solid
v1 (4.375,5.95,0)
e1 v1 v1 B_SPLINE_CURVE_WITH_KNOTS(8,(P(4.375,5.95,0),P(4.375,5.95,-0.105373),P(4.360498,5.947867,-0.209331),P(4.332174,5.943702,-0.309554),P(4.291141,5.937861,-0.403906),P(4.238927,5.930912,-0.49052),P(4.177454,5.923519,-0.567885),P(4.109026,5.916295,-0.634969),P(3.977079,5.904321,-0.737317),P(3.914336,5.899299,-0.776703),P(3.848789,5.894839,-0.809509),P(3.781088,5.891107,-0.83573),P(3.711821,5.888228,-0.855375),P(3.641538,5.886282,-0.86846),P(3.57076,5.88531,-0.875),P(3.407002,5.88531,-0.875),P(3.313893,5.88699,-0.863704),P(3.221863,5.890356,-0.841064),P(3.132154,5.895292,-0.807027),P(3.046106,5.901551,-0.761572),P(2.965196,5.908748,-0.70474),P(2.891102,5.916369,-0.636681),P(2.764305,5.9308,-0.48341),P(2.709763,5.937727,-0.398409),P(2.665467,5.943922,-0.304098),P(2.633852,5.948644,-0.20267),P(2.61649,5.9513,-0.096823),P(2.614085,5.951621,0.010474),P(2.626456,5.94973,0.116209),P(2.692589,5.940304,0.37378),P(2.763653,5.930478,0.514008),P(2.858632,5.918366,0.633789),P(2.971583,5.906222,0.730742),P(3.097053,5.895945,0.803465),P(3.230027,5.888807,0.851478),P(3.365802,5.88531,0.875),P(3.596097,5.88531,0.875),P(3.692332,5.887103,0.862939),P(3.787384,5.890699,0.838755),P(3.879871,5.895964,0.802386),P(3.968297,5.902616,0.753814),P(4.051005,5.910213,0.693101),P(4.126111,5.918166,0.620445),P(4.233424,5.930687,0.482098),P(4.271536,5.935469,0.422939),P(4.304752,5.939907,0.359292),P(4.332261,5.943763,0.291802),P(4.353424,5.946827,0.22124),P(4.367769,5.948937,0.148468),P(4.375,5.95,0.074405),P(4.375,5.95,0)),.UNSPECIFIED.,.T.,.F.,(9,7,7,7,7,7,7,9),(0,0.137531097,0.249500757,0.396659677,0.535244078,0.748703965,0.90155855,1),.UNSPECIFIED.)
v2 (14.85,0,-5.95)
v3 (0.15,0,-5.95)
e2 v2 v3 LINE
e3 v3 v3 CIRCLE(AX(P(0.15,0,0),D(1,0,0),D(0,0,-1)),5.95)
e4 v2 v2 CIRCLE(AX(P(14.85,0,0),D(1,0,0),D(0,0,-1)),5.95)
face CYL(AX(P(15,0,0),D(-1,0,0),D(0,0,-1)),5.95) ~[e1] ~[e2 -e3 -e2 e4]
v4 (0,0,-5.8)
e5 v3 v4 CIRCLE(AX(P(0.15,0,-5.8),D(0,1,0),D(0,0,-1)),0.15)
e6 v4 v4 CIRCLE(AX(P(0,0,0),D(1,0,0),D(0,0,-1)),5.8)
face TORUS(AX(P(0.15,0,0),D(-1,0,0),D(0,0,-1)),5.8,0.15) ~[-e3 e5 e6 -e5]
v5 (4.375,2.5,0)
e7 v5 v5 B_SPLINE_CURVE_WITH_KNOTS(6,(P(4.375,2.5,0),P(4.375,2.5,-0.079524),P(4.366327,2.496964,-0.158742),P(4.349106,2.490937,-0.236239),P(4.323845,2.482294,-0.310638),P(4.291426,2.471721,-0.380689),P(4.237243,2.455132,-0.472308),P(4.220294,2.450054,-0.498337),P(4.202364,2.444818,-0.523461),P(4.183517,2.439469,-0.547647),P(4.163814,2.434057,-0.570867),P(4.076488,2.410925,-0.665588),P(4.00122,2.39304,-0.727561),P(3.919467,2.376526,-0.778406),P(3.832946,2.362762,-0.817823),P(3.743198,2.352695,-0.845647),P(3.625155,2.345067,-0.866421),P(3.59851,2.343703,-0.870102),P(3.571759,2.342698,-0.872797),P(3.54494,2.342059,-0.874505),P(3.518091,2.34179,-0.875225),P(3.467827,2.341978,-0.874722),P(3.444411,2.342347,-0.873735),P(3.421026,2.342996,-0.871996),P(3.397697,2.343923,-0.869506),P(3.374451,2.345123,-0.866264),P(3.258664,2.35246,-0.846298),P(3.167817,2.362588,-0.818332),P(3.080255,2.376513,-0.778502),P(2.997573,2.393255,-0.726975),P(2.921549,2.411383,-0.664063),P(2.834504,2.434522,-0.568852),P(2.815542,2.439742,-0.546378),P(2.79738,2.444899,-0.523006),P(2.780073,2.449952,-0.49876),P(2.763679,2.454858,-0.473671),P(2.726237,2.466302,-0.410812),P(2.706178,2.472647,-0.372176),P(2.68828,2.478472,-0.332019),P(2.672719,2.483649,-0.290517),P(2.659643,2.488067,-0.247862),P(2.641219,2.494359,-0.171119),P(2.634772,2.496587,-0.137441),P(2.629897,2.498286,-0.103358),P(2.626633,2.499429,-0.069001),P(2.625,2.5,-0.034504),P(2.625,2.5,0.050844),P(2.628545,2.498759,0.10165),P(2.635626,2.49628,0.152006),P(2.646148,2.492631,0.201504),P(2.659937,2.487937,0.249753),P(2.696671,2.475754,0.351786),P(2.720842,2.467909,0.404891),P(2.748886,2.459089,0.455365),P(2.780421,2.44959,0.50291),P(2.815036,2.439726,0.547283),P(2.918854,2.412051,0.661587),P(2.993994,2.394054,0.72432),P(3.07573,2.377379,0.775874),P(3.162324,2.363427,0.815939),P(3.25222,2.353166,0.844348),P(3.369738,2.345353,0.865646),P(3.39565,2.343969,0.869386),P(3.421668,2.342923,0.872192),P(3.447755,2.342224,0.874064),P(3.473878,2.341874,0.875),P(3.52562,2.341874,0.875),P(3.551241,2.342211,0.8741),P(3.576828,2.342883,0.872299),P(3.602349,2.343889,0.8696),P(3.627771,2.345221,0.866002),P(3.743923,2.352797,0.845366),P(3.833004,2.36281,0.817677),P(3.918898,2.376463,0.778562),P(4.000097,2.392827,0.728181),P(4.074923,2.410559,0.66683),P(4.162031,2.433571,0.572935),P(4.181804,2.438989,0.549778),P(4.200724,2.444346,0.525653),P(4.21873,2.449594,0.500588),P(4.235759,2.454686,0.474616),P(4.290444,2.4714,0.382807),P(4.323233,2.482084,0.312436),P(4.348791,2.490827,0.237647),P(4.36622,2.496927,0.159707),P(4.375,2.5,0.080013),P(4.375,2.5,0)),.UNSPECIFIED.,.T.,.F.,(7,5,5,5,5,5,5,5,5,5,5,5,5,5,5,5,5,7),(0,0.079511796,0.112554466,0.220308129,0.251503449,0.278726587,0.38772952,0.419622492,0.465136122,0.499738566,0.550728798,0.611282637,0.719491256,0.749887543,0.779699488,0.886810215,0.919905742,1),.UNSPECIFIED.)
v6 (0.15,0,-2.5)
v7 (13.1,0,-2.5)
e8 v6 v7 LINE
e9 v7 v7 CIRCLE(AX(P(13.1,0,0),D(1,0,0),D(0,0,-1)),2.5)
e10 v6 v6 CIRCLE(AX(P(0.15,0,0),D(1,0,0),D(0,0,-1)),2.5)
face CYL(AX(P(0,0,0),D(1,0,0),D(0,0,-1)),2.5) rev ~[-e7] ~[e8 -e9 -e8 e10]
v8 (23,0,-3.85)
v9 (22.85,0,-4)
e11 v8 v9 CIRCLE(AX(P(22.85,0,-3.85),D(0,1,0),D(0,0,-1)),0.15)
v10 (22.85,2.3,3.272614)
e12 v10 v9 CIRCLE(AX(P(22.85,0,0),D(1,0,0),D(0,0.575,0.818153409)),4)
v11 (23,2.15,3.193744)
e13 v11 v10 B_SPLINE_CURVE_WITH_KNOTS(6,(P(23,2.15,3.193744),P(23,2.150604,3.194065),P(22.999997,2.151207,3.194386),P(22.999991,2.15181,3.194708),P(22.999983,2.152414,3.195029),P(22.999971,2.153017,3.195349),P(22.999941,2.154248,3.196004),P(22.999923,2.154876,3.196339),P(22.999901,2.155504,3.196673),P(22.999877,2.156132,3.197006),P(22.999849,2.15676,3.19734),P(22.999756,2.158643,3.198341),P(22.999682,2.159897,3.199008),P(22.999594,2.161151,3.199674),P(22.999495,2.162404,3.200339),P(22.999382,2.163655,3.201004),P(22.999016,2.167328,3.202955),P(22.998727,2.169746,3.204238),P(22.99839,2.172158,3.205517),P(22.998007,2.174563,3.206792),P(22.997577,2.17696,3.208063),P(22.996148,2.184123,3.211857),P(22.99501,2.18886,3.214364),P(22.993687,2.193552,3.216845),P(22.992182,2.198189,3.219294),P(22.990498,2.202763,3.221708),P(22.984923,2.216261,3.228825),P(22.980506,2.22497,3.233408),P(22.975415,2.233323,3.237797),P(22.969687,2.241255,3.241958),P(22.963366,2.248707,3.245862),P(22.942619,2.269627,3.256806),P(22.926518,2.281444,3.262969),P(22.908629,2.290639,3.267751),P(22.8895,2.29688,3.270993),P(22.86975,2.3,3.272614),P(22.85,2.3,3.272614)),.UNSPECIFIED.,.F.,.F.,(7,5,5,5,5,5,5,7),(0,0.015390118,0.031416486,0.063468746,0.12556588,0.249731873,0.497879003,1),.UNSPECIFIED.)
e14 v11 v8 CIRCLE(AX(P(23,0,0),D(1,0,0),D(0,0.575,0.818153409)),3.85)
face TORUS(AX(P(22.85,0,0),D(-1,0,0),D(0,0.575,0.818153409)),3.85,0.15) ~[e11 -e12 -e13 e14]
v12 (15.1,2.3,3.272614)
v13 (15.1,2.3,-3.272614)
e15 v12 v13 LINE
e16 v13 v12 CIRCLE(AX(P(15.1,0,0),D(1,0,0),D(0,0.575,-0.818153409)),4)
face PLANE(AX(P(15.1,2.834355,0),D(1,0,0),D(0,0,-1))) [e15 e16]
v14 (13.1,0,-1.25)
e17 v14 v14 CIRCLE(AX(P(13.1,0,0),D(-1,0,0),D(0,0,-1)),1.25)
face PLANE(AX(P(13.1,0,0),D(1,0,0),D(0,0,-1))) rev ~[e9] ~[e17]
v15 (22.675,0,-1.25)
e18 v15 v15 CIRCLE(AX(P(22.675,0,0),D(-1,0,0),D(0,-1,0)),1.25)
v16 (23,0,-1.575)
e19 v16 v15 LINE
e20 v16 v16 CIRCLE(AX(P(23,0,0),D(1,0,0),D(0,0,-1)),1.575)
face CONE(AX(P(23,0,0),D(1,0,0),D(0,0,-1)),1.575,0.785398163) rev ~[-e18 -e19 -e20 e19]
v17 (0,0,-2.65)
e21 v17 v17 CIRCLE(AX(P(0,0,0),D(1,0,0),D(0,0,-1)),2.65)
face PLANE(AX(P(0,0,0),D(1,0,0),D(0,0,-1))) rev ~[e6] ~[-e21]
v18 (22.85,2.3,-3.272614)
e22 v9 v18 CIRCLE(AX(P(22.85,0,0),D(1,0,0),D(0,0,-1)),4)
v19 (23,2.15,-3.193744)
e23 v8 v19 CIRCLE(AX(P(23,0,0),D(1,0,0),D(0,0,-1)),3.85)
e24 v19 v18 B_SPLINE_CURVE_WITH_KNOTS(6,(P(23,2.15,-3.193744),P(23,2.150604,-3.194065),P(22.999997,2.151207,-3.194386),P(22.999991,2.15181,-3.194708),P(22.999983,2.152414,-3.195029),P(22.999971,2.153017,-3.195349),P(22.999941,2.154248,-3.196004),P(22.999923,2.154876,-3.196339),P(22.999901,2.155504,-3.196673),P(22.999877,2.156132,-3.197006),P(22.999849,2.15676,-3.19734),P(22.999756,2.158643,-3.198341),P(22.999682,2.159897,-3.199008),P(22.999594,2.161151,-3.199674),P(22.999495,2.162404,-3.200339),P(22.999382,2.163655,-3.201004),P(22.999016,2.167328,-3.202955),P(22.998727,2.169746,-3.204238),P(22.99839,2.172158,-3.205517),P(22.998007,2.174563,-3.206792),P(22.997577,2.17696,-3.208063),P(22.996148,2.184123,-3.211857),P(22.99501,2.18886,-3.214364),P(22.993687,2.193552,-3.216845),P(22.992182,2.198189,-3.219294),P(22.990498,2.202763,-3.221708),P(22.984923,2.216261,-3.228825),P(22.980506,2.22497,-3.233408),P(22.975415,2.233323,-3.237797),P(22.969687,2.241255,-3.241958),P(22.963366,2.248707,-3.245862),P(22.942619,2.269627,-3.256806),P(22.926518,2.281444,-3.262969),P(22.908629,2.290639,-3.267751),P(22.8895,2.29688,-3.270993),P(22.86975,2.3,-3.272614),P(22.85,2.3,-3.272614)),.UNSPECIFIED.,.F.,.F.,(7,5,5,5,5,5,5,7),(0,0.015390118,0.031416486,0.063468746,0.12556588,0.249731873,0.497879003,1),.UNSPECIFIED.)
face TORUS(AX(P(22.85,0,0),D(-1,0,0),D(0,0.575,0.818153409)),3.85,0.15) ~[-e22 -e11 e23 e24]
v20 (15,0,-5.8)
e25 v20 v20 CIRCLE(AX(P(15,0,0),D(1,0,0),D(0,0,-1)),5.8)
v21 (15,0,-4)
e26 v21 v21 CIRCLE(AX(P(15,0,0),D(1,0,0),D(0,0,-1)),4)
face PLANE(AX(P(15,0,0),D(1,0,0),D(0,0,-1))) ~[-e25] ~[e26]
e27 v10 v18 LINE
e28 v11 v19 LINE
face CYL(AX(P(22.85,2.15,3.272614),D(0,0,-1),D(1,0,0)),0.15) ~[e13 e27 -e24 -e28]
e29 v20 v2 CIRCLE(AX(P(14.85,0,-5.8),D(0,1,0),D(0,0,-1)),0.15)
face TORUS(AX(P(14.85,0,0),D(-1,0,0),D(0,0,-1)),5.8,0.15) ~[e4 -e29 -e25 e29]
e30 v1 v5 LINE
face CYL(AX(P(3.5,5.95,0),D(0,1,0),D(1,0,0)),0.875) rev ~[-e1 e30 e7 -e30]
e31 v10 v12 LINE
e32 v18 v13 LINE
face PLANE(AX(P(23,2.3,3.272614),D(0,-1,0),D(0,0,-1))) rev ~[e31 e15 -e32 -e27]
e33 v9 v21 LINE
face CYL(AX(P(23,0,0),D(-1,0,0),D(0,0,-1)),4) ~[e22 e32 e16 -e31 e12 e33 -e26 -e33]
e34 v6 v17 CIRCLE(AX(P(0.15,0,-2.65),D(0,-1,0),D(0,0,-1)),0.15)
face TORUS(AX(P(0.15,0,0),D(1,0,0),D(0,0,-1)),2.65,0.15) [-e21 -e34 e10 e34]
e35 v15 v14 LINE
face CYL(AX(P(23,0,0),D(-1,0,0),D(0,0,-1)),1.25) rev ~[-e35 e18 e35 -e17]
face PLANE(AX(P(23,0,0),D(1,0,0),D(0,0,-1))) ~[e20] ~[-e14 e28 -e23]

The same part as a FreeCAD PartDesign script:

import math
import FreeCAD as App
import Part
import Sketcher
Q = App.Units.Quantity


def edges_at(feature, points):
    """Names of the edges that pass closest to the given points."""
    edges = feature.Shape.Edges
    near = lambda p: min(range(len(edges)), key=lambda i: edges[i].distToShape(Part.Vertex(*p))[0])
    return sorted({f"Edge{near(p) + 1}" for p in points})

doc = App.newDocument("Part")
body = doc.addObject("PartDesign::Body", "Body")

sketch1 = body.newObject("Sketcher::SketchObject", "Sketch")
sketch1.AttachmentSupport = (doc.getObject("XZ_Plane"), [""])
sketch1.MapMode = "FlatFace"
sketch1.addGeometry([
    Part.LineSegment(App.Vector(0, -2.5, 0), App.Vector(13.1, -2.5, 0)),
    Part.LineSegment(App.Vector(13.1, -2.5, 0), App.Vector(13.1, 0, 0)),
    Part.LineSegment(App.Vector(13.1, 0, 0), App.Vector(23, 0, 0)),
    Part.LineSegment(App.Vector(23, 0, 0), App.Vector(23, -4, 0)),
    Part.LineSegment(App.Vector(23, -4, 0), App.Vector(15, -4, 0)),
    Part.LineSegment(App.Vector(15, -4, 0), App.Vector(15, -5.95, 0)),
    Part.LineSegment(App.Vector(15, -5.95, 0), App.Vector(0, -5.95, 0)),
    Part.LineSegment(App.Vector(0, -5.95, 0), App.Vector(0, -2.5, 0)),
], False)
sketch1.addConstraint([
    Sketcher.Constraint("Coincident", 0, 2, 1, 1),
    Sketcher.Constraint("Coincident", 1, 2, 2, 1),
    Sketcher.Constraint("Coincident", 2, 2, 3, 1),
    Sketcher.Constraint("Coincident", 3, 2, 4, 1),
    Sketcher.Constraint("Coincident", 4, 2, 5, 1),
    Sketcher.Constraint("Coincident", 5, 2, 6, 1),
    Sketcher.Constraint("Coincident", 6, 2, 7, 1),
    Sketcher.Constraint("Coincident", 7, 2, 0, 1),
    Sketcher.Constraint("Horizontal", 0),
    Sketcher.Constraint("Vertical", 1),
    Sketcher.Constraint("Horizontal", 2),
    Sketcher.Constraint("Vertical", 3),
    Sketcher.Constraint("Horizontal", 4),
    Sketcher.Constraint("Vertical", 5),
    Sketcher.Constraint("Horizontal", 6),
    Sketcher.Constraint("Vertical", 7),
    Sketcher.Constraint("PointOnObject", 1, 2, -1),
    Sketcher.Constraint("PointOnObject", 6, 2, -2),
    Sketcher.Constraint("DistanceX", 4, 2, 4, 1, Q("8 mm")),
    Sketcher.Constraint("DistanceX", 6, 2, 6, 1, Q("15 mm")),
    Sketcher.Constraint("DistanceY", 3, 2, 3, 1, Q("4 mm")),
    Sketcher.Constraint("DistanceX", 0, 1, 0, 2, Q("13.1 mm")),
    Sketcher.Constraint("DistanceY", 1, 1, 1, 2, Q("2.5 mm")),
    Sketcher.Constraint("DistanceY", 5, 2, 5, 1, Q("1.95 mm")),
])
revolution = body.newObject("PartDesign::Revolution", "Revolution")
revolution.Profile = sketch1
revolution.ReferenceAxis = (sketch1, ["H_Axis"])
revolution.Angle = 360

sketch2 = body.newObject("Sketcher::SketchObject", "Sketch001")
sketch2.AttachmentSupport = (doc.getObject("YZ_Plane"), [""])
sketch2.MapMode = "FlatFace"
sketch2.AttachmentOffset = App.Placement(App.Vector(0, 0, 23), App.Rotation())
sketch2.addGeometry([
    Part.LineSegment(App.Vector(2.3, 3.272614, 0), App.Vector(2.3, -3.272614, 0)),
    Part.ArcOfCircle(Part.Circle(App.Vector(0, 0, 0), App.Vector(0, 0, 1), 4), math.radians(-54.900368), math.radians(54.900368)),
], False)
sketch2.addConstraint([
    Sketcher.Constraint("Coincident", 0, 1, 1, 2),
    Sketcher.Constraint("Coincident", 1, 1, 0, 2),
    Sketcher.Constraint("Vertical", 0),
    Sketcher.Constraint("Coincident", 1, 3, -1, 1),
    Sketcher.Constraint("Radius", 1, Q("4 mm")),
    Sketcher.Constraint("DistanceX", -1, 1, 0, 1, Q("2.3 mm")),
])
pocket1 = body.newObject("PartDesign::Pocket", "Pocket")
pocket1.Profile = sketch2
pocket1.Length = 7.9

sketch3 = body.newObject("Sketcher::SketchObject", "Sketch002")
sketch3.AttachmentSupport = (doc.getObject("YZ_Plane"), [""])
sketch3.MapMode = "FlatFace"
sketch3.AttachmentOffset = App.Placement(App.Vector(0, 0, 23), App.Rotation())
sketch3.addGeometry(Part.Circle(App.Vector(0, 0, 0), App.Vector(0, 0, 1), 1.25), False)
sketch3.addConstraint([
    Sketcher.Constraint("Coincident", 0, 3, -1, 1),
    Sketcher.Constraint("Diameter", 0, Q("2.5 mm")),
])
doc.recompute()
hole = body.newObject("PartDesign::Hole", "Hole")
hole.Profile = sketch3
hole.ThreadType = "None"
hole.Diameter = 2.5
hole.DepthType = "ThroughAll"
hole.HoleCutType = "Countersink"
hole.HoleCutDiameter = 3.15
hole.HoleCutCountersinkAngle = 90
doc.recompute()

fillet = body.newObject("PartDesign::Fillet", "Fillet")
fillet.Base = (hole, edges_at(hole, [
    (23, -3.814, 1.206),
    (23, 2.3, 0),
    (0, 0, 2.5),
    (0, 0, 5.95),
    (15, 0, 5.95),
]))
fillet.Radius = 0.15

sketch4 = body.newObject("Sketcher::SketchObject", "Sketch003")
sketch4.AttachmentSupport = (doc.getObject("XZ_Plane"), [""])
sketch4.MapMode = "FlatFace"
sketch4.AttachmentOffset = App.Placement(App.Vector(0, 0, -5.95), App.Rotation())
sketch4.addGeometry(Part.Circle(App.Vector(3.5, 0, 0), App.Vector(0, 0, 1), 0.875), False)
sketch4.addConstraint([
    Sketcher.Constraint("PointOnObject", 0, 3, -1),
    Sketcher.Constraint("Diameter", 0, Q("1.75 mm")),
    Sketcher.Constraint("DistanceX", -1, 1, 0, 3, Q("3.5 mm")),
])
pocket2 = body.newObject("PartDesign::Pocket", "Pocket001")
pocket2.Profile = sketch4
pocket2.Length = 6
pocket2.Reversed = True

doc.recompute()
